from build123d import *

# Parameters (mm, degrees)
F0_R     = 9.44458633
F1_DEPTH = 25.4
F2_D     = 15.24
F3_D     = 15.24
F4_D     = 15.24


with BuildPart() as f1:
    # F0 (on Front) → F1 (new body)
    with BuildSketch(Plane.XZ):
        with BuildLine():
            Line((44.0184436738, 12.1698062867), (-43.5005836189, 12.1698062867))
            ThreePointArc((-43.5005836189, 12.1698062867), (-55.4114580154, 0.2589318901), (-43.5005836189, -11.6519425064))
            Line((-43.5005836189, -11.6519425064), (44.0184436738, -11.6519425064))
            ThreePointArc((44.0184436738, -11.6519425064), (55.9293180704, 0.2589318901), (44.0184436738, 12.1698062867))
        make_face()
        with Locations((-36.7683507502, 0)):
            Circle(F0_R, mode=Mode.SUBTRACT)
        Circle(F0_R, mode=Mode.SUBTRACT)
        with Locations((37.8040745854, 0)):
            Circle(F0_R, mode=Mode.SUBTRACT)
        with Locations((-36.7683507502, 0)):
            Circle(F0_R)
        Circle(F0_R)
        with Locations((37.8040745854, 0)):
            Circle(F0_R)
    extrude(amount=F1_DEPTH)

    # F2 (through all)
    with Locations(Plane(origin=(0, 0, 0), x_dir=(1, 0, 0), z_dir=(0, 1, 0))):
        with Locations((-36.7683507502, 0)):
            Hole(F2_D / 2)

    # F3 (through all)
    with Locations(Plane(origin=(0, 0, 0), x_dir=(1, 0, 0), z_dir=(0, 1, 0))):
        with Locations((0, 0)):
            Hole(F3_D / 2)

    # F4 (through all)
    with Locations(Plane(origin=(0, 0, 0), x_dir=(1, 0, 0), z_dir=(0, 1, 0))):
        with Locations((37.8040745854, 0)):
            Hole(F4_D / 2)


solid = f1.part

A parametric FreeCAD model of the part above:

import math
import FreeCAD as App
import Part
import Sketcher
Q = App.Units.Quantity

doc = App.newDocument("Part")
body = doc.addObject("PartDesign::Body", "Body")

# Sketch on XZ plane
sketch1 = body.newObject("Sketcher::SketchObject", "Sketch")
sketch1.AttachmentSupport = (doc.getObject("XZ_Plane"), [""])
sketch1.MapMode = "FlatFace"
sketch1.addGeometry([
    Part.LineSegment(App.Vector(44, 12, 0), App.Vector(-44, 12, 0)),
    Part.ArcOfCircle(Part.Circle(App.Vector(-44, 0, 0), App.Vector(0, 0, 1), 12), math.radians(90), math.radians(270)),
    Part.LineSegment(App.Vector(-44, -12, 0), App.Vector(44, -12, 0)),
    Part.ArcOfCircle(Part.Circle(App.Vector(44, 0, 0), App.Vector(0, 0, 1), 12), math.radians(-90), math.radians(90)),
], False)
sketch1.addConstraint([
    Sketcher.Constraint("Tangent", 0, 2, 1, 1),
    Sketcher.Constraint("Tangent", 1, 2, 2, 1),
    Sketcher.Constraint("Tangent", 2, 2, 3, 1),
    Sketcher.Constraint("Tangent", 3, 2, 0, 1),
    Sketcher.Constraint("Horizontal", 0),
    Sketcher.Constraint("Horizontal", 2),
    Sketcher.Constraint("Radius", 1, 11.910874),
    Sketcher.Constraint("DistanceX", 0, 2, 0, 1, 87.519027),
    Sketcher.Constraint("DistanceY", -1, 1, 1, 3, 0.258932),
    Sketcher.Constraint("DistanceX", 1, 3, -1, 1, 43.500584),
])
pad1 = body.newObject("PartDesign::Pad", "Pad")
pad1.Profile = sketch1
pad1.Length = Q("1 in")

# Sketch on XZ plane
sketch2 = body.newObject("Sketcher::SketchObject", "Sketch001")
sketch2.AttachmentSupport = (doc.getObject("XZ_Plane"), [""])
sketch2.MapMode = "FlatFace"
sketch2.addGeometry(Part.Circle(App.Vector(-37, 0, 0), App.Vector(0, 0, 1), 8), False)
sketch2.addConstraint([
    Sketcher.Constraint("PointOnObject", 0, 3, -1),
    Sketcher.Constraint("Diameter", 0, Q("0.6 in")),
    Sketcher.Constraint("DistanceX", 0, 3, -1, 1, 36.768351),
])
doc.recompute()
hole = body.newObject("PartDesign::Hole", "Hole")
hole.Profile = sketch2
hole.ThreadType = "None"
hole.Diameter = Q("0.6 in")
hole.DepthType = "ThroughAll"
hole.Reversed = True

# Sketch on XZ plane
sketch3 = body.newObject("Sketcher::SketchObject", "Sketch002")
sketch3.AttachmentSupport = (doc.getObject("XZ_Plane"), [""])
sketch3.MapMode = "FlatFace"
sketch3.addGeometry(Part.Circle(App.Vector(0, 0, 0), App.Vector(0, 0, 1), 8), False)
sketch3.addConstraint([
    Sketcher.Constraint("Coincident", 0, 3, -1, 1),
    Sketcher.Constraint("Diameter", 0, Q("0.6 in")),
])
doc.recompute()
hole2 = body.newObject("PartDesign::Hole", "Hole001")
hole2.Profile = sketch3
hole2.ThreadType = "None"
hole2.Diameter = Q("0.6 in")
hole2.DepthType = "ThroughAll"
hole2.Reversed = True

# Sketch on XZ plane
sketch4 = body.newObject("Sketcher::SketchObject", "Sketch003")
sketch4.AttachmentSupport = (doc.getObject("XZ_Plane"), [""])
sketch4.MapMode = "FlatFace"
sketch4.addGeometry(Part.Circle(App.Vector(38, 0, 0), App.Vector(0, 0, 1), 8), False)
sketch4.addConstraint([
    Sketcher.Constraint("PointOnObject", 0, 3, -1),
    Sketcher.Constraint("Diameter", 0, Q("0.6 in")),
    Sketcher.Constraint("DistanceX", -1, 1, 0, 3, 37.804075),
])
doc.recompute()
hole3 = body.newObject("PartDesign::Hole", "Hole002")
hole3.Profile = sketch4
hole3.ThreadType = "None"
hole3.Diameter = Q("0.6 in")
hole3.DepthType = "ThroughAll"
hole3.Reversed = True

doc.recompute()
